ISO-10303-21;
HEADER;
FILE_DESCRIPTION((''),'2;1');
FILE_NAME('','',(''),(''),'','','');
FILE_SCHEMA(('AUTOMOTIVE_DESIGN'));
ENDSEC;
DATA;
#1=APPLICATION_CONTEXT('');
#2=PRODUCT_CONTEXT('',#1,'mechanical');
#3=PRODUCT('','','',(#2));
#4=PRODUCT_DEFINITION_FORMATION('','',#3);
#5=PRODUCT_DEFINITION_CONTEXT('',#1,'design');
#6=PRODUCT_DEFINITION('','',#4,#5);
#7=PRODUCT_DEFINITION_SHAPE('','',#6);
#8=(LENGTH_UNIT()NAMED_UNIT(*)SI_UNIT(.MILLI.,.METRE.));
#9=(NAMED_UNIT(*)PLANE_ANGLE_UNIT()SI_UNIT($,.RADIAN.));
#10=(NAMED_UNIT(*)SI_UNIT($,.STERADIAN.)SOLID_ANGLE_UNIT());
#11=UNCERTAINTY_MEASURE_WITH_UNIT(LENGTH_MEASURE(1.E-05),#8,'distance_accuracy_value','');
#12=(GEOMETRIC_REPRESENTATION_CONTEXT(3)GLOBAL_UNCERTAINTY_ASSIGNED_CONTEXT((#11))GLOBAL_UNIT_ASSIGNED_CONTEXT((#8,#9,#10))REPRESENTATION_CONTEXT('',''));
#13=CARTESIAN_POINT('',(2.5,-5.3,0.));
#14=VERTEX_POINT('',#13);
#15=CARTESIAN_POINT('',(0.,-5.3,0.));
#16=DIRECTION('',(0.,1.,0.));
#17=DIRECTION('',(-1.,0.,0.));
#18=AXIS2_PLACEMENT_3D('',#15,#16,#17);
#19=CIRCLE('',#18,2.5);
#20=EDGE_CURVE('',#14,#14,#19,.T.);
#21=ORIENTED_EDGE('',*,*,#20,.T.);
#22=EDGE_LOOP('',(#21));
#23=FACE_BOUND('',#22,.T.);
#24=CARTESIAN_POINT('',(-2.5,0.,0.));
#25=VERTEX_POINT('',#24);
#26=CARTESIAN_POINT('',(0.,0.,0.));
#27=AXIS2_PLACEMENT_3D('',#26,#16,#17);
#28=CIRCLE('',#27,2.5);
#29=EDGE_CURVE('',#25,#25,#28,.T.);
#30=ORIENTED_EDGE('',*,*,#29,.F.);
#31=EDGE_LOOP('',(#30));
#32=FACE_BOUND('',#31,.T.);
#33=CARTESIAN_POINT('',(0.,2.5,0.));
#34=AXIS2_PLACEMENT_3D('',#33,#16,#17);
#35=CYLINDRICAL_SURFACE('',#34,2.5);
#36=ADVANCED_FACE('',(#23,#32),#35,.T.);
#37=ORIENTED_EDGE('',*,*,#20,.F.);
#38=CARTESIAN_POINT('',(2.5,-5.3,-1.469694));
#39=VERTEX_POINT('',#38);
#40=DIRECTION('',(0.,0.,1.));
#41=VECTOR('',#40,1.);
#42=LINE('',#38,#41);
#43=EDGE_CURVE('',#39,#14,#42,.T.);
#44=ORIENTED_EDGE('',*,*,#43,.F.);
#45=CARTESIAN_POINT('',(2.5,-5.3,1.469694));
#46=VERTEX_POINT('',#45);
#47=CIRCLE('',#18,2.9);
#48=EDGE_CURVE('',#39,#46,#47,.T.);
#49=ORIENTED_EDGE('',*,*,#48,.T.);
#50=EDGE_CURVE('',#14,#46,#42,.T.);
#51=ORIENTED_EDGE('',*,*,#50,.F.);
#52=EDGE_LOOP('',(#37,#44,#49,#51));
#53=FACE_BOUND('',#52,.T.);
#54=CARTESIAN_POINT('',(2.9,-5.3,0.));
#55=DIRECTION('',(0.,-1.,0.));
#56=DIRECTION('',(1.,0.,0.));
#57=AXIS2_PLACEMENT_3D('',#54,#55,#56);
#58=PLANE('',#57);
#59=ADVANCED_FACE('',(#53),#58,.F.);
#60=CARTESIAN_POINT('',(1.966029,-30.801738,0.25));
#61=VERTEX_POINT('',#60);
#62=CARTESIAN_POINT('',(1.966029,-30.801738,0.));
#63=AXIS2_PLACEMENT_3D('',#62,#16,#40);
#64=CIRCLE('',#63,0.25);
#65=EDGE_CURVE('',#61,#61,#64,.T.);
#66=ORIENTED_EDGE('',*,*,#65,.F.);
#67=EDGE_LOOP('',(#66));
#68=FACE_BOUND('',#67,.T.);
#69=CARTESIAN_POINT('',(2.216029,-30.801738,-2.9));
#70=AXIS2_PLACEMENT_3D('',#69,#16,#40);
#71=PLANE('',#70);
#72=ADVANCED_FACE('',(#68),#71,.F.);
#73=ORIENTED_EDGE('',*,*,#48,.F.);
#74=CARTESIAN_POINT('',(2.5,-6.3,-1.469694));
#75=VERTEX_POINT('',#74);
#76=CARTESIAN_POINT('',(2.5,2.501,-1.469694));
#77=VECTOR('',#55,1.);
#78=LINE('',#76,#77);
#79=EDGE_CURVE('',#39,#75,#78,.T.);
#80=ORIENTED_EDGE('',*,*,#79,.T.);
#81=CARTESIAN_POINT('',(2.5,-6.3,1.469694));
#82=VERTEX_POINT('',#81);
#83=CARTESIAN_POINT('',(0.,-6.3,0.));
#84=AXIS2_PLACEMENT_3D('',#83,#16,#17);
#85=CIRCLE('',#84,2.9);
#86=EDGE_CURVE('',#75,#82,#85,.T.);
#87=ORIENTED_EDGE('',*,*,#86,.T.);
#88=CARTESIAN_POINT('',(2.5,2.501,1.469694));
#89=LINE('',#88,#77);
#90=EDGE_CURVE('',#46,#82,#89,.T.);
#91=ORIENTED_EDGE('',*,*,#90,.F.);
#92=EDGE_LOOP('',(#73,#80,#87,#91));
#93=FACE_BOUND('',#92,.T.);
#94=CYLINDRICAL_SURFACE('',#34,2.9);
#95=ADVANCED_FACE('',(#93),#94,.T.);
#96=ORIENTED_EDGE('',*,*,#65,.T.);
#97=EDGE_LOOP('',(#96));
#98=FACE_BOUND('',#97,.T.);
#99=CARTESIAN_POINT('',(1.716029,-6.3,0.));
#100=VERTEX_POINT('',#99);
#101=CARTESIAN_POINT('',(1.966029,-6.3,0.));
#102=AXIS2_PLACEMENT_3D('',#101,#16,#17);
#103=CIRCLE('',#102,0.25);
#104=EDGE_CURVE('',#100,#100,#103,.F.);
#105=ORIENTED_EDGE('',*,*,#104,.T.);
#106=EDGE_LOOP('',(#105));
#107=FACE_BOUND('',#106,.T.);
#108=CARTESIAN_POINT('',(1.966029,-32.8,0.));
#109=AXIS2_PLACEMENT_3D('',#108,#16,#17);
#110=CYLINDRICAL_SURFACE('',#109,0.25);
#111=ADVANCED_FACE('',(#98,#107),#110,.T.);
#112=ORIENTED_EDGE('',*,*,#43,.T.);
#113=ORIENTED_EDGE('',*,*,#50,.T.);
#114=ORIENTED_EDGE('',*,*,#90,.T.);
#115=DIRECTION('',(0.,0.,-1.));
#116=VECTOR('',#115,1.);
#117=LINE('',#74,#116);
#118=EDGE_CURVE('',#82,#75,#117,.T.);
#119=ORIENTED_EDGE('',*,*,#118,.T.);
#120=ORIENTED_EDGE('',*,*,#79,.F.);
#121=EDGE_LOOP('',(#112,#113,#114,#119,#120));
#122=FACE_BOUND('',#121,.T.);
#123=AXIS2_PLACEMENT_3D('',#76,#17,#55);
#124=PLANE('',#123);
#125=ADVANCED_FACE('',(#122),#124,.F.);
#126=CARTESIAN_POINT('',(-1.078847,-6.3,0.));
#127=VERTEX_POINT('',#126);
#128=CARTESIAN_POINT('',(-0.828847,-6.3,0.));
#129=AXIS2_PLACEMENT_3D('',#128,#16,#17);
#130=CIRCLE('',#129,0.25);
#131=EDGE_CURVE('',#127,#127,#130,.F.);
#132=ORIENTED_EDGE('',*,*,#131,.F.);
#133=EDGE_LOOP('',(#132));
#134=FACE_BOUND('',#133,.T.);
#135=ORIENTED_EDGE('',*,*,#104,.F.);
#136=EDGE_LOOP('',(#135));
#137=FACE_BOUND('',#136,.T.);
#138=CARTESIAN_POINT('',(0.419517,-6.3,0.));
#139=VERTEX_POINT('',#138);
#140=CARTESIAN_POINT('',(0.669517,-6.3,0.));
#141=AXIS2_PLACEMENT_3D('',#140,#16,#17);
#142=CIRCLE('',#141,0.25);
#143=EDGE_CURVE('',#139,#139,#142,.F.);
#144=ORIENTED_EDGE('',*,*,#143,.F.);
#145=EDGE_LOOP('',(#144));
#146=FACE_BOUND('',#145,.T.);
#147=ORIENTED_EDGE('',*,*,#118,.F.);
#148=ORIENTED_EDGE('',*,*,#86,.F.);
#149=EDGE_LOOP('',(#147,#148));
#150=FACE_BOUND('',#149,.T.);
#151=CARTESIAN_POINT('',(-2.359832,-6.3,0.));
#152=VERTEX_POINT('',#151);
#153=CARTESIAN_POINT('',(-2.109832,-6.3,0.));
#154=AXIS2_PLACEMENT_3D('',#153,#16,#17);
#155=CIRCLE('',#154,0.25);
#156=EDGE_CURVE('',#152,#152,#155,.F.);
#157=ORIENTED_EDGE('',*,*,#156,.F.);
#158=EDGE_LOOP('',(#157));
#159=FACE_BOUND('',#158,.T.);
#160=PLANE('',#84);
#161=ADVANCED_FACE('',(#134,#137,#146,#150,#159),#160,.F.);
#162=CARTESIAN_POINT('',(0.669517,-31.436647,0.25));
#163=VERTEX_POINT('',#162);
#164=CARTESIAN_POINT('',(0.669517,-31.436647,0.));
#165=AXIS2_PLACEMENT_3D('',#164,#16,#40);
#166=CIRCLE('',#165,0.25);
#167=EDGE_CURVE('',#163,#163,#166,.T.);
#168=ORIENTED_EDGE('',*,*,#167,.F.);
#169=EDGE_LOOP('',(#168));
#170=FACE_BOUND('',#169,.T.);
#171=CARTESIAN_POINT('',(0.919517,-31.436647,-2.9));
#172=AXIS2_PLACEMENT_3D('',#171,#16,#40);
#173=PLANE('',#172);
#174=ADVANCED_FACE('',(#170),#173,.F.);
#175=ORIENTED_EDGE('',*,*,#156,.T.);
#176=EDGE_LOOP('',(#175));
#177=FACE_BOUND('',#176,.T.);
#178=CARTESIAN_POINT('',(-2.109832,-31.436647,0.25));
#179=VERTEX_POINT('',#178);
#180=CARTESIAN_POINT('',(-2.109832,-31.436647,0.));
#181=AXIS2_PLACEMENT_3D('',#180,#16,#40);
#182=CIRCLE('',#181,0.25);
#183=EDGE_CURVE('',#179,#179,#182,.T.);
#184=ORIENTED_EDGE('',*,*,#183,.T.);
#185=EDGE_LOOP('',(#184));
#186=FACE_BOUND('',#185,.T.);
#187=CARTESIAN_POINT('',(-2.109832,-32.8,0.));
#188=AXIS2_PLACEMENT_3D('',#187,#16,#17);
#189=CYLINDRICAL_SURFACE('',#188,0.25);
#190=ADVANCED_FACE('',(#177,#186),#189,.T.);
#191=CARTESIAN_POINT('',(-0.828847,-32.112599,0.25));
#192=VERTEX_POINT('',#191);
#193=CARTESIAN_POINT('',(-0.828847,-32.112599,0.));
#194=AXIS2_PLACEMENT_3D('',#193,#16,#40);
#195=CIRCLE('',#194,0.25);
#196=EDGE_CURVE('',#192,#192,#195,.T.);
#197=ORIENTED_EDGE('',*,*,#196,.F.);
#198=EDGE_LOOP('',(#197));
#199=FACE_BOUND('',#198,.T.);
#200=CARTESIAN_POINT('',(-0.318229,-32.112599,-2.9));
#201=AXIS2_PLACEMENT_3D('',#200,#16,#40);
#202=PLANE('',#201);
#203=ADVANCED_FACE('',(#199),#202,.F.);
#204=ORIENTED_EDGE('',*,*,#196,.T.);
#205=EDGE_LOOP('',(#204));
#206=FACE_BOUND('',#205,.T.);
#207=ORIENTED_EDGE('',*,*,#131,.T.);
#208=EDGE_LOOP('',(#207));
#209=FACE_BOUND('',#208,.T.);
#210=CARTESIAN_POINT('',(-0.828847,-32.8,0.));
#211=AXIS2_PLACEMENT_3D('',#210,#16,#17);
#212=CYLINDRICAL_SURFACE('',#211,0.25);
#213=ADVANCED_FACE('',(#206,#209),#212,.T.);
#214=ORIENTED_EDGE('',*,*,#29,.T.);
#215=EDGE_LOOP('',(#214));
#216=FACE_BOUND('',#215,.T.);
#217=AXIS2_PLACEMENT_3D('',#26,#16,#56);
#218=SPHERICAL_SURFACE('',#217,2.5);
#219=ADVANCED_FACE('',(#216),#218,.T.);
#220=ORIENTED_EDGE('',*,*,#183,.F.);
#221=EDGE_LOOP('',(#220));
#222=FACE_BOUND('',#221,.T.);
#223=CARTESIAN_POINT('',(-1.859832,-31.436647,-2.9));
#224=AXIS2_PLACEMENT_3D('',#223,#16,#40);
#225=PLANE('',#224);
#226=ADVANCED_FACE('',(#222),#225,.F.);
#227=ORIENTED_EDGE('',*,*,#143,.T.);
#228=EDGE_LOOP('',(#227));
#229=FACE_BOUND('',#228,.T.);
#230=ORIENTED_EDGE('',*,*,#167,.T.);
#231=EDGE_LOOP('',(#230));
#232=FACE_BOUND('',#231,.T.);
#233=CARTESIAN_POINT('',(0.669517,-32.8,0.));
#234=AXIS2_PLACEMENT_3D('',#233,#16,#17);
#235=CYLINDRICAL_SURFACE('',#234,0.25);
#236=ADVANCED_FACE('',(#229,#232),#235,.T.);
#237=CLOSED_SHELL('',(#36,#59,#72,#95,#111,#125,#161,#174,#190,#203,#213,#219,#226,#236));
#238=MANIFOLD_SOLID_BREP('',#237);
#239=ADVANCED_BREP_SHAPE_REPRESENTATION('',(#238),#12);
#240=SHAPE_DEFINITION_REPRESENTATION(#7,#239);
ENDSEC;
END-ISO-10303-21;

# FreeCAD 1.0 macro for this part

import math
import FreeCAD as App
import Part
import Sketcher

doc = App.newDocument("Part")
body = doc.addObject("PartDesign::Body", "Body")

sketch1 = body.newObject("Sketcher::SketchObject", "Sketch")
sketch1.AttachmentSupport = (doc.getObject("XY_Plane"), [""])
sketch1.MapMode = "FlatFace"
sketch1.addGeometry(Part.LineSegment(App.Vector(0, 2.5, 0), App.Vector(0, -6.3, 0)), False)
sketch1.addGeometry(Part.LineSegment(App.Vector(0, -6.3, 0), App.Vector(2.9, -6.3, 0)), False)
sketch1.addGeometry(Part.LineSegment(App.Vector(2.9, -6.3, 0), App.Vector(2.9, -5.3, 0)), False)
sketch1.addGeometry(Part.LineSegment(App.Vector(2.9, -5.3, 0), App.Vector(2.5, -5.3, 0)), False)
sketch1.addGeometry(Part.LineSegment(App.Vector(2.5, -5.3, 0), App.Vector(2.5, 0, 0)), False)
sketch1.addGeometry(Part.ArcOfCircle(Part.Circle(App.Vector(0, 0, 0), App.Vector(0, 0, 1), 2.5), math.radians(0), math.radians(90)), False)
sketch1.addConstraint(Sketcher.Constraint("Coincident", 0, 2, 1, 1))
sketch1.addConstraint(Sketcher.Constraint("Coincident", 1, 2, 2, 1))
sketch1.addConstraint(Sketcher.Constraint("Coincident", 2, 2, 3, 1))
sketch1.addConstraint(Sketcher.Constraint("Coincident", 3, 2, 4, 1))
sketch1.addConstraint(Sketcher.Constraint("Tangent", 4, 2, 5, 1))
sketch1.addConstraint(Sketcher.Constraint("Coincident", 5, 2, 0, 1))
sketch1.addConstraint(Sketcher.Constraint("Vertical", 0))
sketch1.addConstraint(Sketcher.Constraint("Horizontal", 1))
sketch1.addConstraint(Sketcher.Constraint("Vertical", 2))
sketch1.addConstraint(Sketcher.Constraint("Horizontal", 3))
sketch1.addConstraint(Sketcher.Constraint("Vertical", 4))
sketch1.addConstraint(Sketcher.Constraint("Coincident", 5, 3, -1, 1))
sketch1.addConstraint(Sketcher.Constraint("PointOnObject", 0, 2, -2))
sketch1.addConstraint(Sketcher.Constraint("Radius", 5, 2.5))
sketch1.addConstraint(Sketcher.Constraint("DistanceY", 2, 1, 2, 2, 1.0))
sketch1.addConstraint(Sketcher.Constraint("DistanceX", 1, 1, 1, 2, 2.9))
sketch1.addConstraint(Sketcher.Constraint("DistanceY", 0, 2, 0, 1, 8.8))
revolution = body.newObject("PartDesign::Revolution", "Revolution")
revolution.Profile = sketch1
revolution.ReferenceAxis = (sketch1, ["V_Axis"])
revolution.Angle = 360

sketch2 = body.newObject("Sketcher::SketchObject", "Sketch001")
sketch2.AttachmentSupport = (doc.getObject("XZ_Plane"), [""])
sketch2.MapMode = "FlatFace"
sketch2.AttachmentOffset = App.Placement(App.Vector(0, 0, 6.3), App.Rotation())
sketch2.addGeometry(Part.LineSegment(App.Vector(2.5, 1.469694, 0), App.Vector(2.5, -1.469694, 0)), False)
sketch2.addGeometry(Part.ArcOfCircle(Part.Circle(App.Vector(0, 0, 0), App.Vector(0, 0, 1), 2.9), math.radians(-30.450314), math.radians(30.450314)), False)
sketch2.addConstraint(Sketcher.Constraint("Coincident", 0, 1, 1, 2))
sketch2.addConstraint(Sketcher.Constraint("Coincident", 1, 1, 0, 2))
sketch2.addConstraint(Sketcher.Constraint("Vertical", 0))
sketch2.addConstraint(Sketcher.Constraint("Coincident", 1, 3, -1, 1))
sketch2.addConstraint(Sketcher.Constraint("Radius", 1, 2.9))
sketch2.addConstraint(Sketcher.Constraint("DistanceX", -1, 1, 0, 1, 2.5))
pocket1 = body.newObject("PartDesign::Pocket", "Pocket")
pocket1.Profile = sketch2
pocket1.Type = "UpToFirst"

sketch3 = body.newObject("Sketcher::SketchObject", "Sketch002")
sketch3.AttachmentSupport = (doc.getObject("XZ_Plane"), [""])
sketch3.MapMode = "FlatFace"
sketch3.AttachmentOffset = App.Placement(App.Vector(0, 0, 6.3), App.Rotation())
sketch3.addGeometry(Part.Circle(App.Vector(1.966029, 0, 0), App.Vector(0, 0, 1), 0.25), False)
sketch3.addGeometry(Part.Circle(App.Vector(0.669517, 0, 0), App.Vector(0, 0, 1), 0.25), False)
sketch3.addGeometry(Part.Circle(App.Vector(-0.828847, 0, 0), App.Vector(0, 0, 1), 0.25), False)
sketch3.addGeometry(Part.Circle(App.Vector(-2.109832, 0, 0), App.Vector(0, 0, 1), 0.25), False)
sketch3.addConstraint(Sketcher.Constraint("Equal", 0, 1))
sketch3.addConstraint(Sketcher.Constraint("Equal", 1, 2))
sketch3.addConstraint(Sketcher.Constraint("Equal", 2, 3))
sketch3.addConstraint(Sketcher.Constraint("PointOnObject", 0, 3, -1))
sketch3.addConstraint(Sketcher.Constraint("PointOnObject", 1, 3, -1))
sketch3.addConstraint(Sketcher.Constraint("PointOnObject", 2, 3, -1))
sketch3.addConstraint(Sketcher.Constraint("PointOnObject", 3, 3, -1))
sketch3.addConstraint(Sketcher.Constraint("Diameter", 0, 0.5))
sketch3.addConstraint(Sketcher.Constraint("DistanceX", -1, 1, 0, 3, 1.966029))
sketch3.addConstraint(Sketcher.Constraint("DistanceX", 3, 3, -1, 1, 2.109832))
sketch3.addConstraint(Sketcher.Constraint("DistanceX", 1, 3, 0, 3, 1.296512))
sketch3.addConstraint(Sketcher.Constraint("DistanceX", 2, 3, -1, 1, 0.828847))
pad1 = body.newObject("PartDesign::Pad", "Pad")
pad1.Profile = sketch3
pad1.Length = 26.5

sketch4 = body.newObject("Sketcher::SketchObject", "Sketch003")
sketch4.AttachmentSupport = (doc.getObject("XY_Plane"), [""])
sketch4.MapMode = "FlatFace"
sketch4.addGeometry(Part.LineSegment(App.Vector(1.716029, -30.801738, 0), App.Vector(0.919517, -31.436647, 0)), False)
sketch4.addGeometry(Part.LineSegment(App.Vector(0.919517, -31.436647, 0), App.Vector(0.419517, -31.436647, 0)), False)
sketch4.addGeometry(Part.LineSegment(App.Vector(0.419517, -31.436647, 0), App.Vector(-0.318229, -32.112599, 0)), False)
sketch4.addGeometry(Part.LineSegment(App.Vector(-0.318229, -32.112599, 0), App.Vector(-1.342626, -32.112599, 0)), False)
sketch4.addGeometry(Part.LineSegment(App.Vector(-1.342626, -32.112599, 0), App.Vector(-1.859832, -31.436647, 0)), False)
sketch4.addGeometry(Part.LineSegment(App.Vector(-1.859832, -31.436647, 0), App.Vector(-2.359832, -31.436647, 0)), False)
sketch4.addGeometry(Part.LineSegment(App.Vector(-2.359832, -31.436647, 0), App.Vector(-2.359832, -33.265581, 0)), False)
sketch4.addGeometry(Part.LineSegment(App.Vector(-2.359832, -33.265581, 0), App.Vector(2.627655, -33.265581, 0)), False)
sketch4.addGeometry(Part.LineSegment(App.Vector(2.627655, -33.265581, 0), App.Vector(2.686516, -30.801738, 0)), False)
sketch4.addGeometry(Part.LineSegment(App.Vector(2.686516, -30.801738, 0), App.Vector(1.716029, -30.801738, 0)), False)
sketch4.addConstraint(Sketcher.Constraint("Coincident", 0, 2, 1, 1))
sketch4.addConstraint(Sketcher.Constraint("Coincident", 1, 2, 2, 1))
sketch4.addConstraint(Sketcher.Constraint("Coincident", 2, 2, 3, 1))
sketch4.addConstraint(Sketcher.Constraint("Coincident", 3, 2, 4, 1))
sketch4.addConstraint(Sketcher.Constraint("Coincident", 4, 2, 5, 1))
sketch4.addConstraint(Sketcher.Constraint("Coincident", 5, 2, 6, 1))
sketch4.addConstraint(Sketcher.Constraint("Coincident", 6, 2, 7, 1))
sketch4.addConstraint(Sketcher.Constraint("Coincident", 7, 2, 8, 1))
sketch4.addConstraint(Sketcher.Constraint("Coincident", 8, 2, 9, 1))
sketch4.addConstraint(Sketcher.Constraint("Coincident", 9, 2, 0, 1))
sketch4.addConstraint(Sketcher.Constraint("Horizontal", 1))
sketch4.addConstraint(Sketcher.Constraint("Horizontal", 3))
sketch4.addConstraint(Sketcher.Constraint("Horizontal", 5))
sketch4.addConstraint(Sketcher.Constraint("Vertical", 6))
sketch4.addConstraint(Sketcher.Constraint("Horizontal", 7))
sketch4.addConstraint(Sketcher.Constraint("Horizontal", 9))
sketch4.addConstraint(Sketcher.Constraint("Horizontal", 1, 2, 4, 2))
sketch4.addConstraint(Sketcher.Constraint("Equal", 1, 5))
sketch4.addConstraint(Sketcher.Constraint("DistanceX", 1, 2, 1, 1, 0.5))
sketch4.addConstraint(Sketcher.Constraint("DistanceX", 0, 2, 8, 2, 1.766999))
sketch4.addConstraint(Sketcher.Constraint("DistanceY", 2, 2, -1, 1, 32.112599))
sketch4.addConstraint(Sketcher.Constraint("Distance", 2, 1.00059))
sketch4.addConstraint(Sketcher.Constraint("DistanceX", 3, 2, 3, 1, 1.024396))
sketch4.addConstraint(Sketcher.Constraint("DistanceX", 7, 1, 7, 2, 4.987486))
sketch4.addConstraint(Sketcher.Constraint("DistanceX", 9, 2, 9, 1, 0.970488))
sketch4.addConstraint(Sketcher.Constraint("DistanceY", 6, 2, 6, 1, 1.828934))
sketch4.addConstraint(Sketcher.Constraint("DistanceX", 2, 2, -1, 1, 0.318229))
sketch4.addConstraint(Sketcher.Constraint("DistanceX", 4, 2, -1, 1, 1.859832))
sketch4.addConstraint(Sketcher.Constraint("DistanceY", 6, 2, -1, 1, 33.265581))
sketch4.addConstraint(Sketcher.Constraint("DistanceY", 0, 2, 8, 2, 0.634909))
pocket2 = body.newObject("PartDesign::Pocket", "Pocket001")
pocket2.Profile = sketch4
pocket2.Type = "ThroughAll"
pocket2.Midplane = True

doc.recompute()
